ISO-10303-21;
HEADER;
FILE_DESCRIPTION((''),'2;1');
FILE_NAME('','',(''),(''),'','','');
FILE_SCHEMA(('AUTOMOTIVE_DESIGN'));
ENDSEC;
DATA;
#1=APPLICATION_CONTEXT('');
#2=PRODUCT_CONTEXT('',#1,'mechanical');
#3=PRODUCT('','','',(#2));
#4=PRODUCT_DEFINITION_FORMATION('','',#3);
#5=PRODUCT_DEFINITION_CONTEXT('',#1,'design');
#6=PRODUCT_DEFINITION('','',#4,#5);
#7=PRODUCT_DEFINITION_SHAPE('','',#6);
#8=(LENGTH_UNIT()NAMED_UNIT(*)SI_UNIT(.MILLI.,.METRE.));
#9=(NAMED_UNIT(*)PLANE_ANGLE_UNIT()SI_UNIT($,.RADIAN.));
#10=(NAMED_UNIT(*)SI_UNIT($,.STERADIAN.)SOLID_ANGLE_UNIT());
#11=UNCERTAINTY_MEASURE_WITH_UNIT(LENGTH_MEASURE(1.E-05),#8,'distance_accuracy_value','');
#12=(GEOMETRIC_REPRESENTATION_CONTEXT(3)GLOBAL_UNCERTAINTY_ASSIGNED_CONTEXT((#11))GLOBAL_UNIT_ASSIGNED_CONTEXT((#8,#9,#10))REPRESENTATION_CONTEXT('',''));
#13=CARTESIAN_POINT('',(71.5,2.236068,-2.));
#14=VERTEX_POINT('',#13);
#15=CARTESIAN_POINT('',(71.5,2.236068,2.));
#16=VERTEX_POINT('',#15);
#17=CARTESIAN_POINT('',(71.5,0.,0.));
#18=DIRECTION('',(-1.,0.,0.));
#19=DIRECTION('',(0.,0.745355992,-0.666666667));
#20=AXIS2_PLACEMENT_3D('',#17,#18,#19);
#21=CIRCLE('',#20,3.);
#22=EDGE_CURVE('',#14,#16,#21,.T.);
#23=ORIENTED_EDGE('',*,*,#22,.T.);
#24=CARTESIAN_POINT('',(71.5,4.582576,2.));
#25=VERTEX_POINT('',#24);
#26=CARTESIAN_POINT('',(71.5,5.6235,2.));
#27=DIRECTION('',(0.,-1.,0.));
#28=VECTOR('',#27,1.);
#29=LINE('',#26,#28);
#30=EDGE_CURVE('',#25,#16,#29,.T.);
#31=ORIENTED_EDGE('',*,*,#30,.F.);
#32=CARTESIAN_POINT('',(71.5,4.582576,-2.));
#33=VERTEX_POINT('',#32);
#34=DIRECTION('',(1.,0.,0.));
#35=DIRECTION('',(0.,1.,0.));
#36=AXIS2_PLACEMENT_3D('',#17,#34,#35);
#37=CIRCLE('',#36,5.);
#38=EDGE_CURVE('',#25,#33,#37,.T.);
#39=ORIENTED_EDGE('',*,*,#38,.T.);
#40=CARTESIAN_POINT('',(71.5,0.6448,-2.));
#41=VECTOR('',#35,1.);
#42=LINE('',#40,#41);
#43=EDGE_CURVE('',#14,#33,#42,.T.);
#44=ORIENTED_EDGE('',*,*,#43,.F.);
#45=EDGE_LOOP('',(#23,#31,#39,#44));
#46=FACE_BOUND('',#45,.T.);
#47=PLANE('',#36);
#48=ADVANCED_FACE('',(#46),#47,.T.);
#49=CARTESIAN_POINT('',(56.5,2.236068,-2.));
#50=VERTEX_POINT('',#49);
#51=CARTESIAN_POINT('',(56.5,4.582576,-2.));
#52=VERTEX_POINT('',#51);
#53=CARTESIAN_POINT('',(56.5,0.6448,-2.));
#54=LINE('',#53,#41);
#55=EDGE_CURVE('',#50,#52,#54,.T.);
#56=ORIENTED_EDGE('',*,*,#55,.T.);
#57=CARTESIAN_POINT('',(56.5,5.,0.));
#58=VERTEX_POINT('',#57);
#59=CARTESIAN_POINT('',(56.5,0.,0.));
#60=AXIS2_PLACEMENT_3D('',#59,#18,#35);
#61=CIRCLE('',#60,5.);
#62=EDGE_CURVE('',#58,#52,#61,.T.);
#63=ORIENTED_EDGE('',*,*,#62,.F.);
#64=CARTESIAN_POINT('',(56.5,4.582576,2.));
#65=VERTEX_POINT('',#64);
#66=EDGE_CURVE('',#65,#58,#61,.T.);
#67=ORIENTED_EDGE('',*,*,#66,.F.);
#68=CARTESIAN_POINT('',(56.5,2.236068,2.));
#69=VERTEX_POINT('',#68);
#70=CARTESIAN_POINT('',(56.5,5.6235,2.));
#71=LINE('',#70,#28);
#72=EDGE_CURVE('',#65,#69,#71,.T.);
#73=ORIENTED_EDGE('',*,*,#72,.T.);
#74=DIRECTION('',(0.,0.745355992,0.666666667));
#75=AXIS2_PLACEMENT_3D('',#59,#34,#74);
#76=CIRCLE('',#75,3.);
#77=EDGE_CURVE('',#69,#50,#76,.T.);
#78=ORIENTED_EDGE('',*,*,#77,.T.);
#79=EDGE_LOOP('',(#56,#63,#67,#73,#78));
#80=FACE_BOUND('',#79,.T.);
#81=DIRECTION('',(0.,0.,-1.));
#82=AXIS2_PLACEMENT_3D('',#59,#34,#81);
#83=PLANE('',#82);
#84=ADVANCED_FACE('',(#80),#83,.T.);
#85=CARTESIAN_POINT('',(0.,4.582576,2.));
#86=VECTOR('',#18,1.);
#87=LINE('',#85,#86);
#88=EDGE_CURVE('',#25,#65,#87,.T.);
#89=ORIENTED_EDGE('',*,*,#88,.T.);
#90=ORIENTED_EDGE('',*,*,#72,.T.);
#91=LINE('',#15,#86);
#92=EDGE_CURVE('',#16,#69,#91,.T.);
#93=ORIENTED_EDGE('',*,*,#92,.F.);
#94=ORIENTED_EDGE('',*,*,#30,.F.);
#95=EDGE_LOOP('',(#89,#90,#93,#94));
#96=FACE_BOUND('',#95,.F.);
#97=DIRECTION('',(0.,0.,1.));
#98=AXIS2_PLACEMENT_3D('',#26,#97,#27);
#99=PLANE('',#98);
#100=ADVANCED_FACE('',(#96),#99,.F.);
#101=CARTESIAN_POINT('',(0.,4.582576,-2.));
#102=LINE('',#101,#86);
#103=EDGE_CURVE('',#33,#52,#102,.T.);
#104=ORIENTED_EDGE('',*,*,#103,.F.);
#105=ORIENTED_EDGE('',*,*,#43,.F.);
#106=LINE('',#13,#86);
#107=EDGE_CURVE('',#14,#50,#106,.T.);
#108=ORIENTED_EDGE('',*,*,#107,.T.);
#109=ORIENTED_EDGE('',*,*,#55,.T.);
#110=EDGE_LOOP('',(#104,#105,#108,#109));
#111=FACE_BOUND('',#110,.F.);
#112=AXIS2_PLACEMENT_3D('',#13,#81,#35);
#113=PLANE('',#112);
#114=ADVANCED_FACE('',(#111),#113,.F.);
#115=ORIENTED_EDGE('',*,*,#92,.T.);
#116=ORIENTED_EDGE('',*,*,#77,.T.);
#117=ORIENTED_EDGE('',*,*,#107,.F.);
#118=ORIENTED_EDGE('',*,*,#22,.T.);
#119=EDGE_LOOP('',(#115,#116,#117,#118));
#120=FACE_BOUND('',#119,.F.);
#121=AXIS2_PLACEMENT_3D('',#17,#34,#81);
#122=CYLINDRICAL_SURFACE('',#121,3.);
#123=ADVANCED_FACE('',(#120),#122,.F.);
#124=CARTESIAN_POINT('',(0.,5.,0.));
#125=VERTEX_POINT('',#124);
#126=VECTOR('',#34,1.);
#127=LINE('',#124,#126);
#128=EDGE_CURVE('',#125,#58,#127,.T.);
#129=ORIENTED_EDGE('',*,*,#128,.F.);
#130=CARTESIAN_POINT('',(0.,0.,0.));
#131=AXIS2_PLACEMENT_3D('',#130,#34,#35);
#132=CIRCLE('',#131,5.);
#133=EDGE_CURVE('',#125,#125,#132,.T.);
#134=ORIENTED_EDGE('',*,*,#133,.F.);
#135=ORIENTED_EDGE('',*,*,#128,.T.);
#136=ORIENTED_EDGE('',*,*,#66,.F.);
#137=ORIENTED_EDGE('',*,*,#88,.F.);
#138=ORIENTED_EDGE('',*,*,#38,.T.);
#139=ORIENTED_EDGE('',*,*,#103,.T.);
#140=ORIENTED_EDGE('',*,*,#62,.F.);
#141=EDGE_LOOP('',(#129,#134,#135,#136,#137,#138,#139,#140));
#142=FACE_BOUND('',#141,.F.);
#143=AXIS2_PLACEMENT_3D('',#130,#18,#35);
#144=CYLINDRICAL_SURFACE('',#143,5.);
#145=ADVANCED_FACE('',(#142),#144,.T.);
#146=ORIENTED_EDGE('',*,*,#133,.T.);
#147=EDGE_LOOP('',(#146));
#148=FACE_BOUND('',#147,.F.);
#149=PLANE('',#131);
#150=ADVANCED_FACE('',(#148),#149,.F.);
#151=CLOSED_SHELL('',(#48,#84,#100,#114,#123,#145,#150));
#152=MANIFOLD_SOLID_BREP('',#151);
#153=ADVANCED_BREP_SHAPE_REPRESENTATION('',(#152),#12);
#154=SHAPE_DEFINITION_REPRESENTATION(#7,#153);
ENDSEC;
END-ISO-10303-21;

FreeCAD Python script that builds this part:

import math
import FreeCAD as App
import Part
import Sketcher

doc = App.newDocument("Part")
body = doc.addObject("PartDesign::Body", "Body")

# Sketch on YZ plane
sketch1 = doc.addObject("Sketcher::SketchObject", "Sketch")
body.addObject(sketch1)
sketch1.AttachmentSupport = (doc.YZ_Plane, [""])
sketch1.MapMode = "FlatFace"
sketch1.addGeometry(Part.Circle(App.Vector(0, 0, 0), App.Vector(0, 0, 1), 5), False)
sketch1.addConstraint(Sketcher.Constraint("Coincident", 0, 3, -1, 1))
sketch1.addConstraint(Sketcher.Constraint("Diameter", 0, 10.0))
pad1 = doc.addObject("PartDesign::Pad", "Pad")
body.addObject(pad1)
pad1.Profile = sketch1
pad1.Length = 71.5

# Sketch on YZ plane
sketch2 = doc.addObject("Sketcher::SketchObject", "Sketch001")
body.addObject(sketch2)
sketch2.AttachmentSupport = (doc.YZ_Plane, [""])
sketch2.MapMode = "FlatFace"
sketch2.AttachmentOffset = App.Placement(App.Vector(0, 0, 71.5), App.Rotation())
sketch2.addGeometry(Part.ArcOfCircle(Part.Circle(App.Vector(0, 0, 0), App.Vector(0, 0, 1), 3), math.radians(42), math.radians(318)), False)
sketch2.addGeometry(Part.LineSegment(App.Vector(2.2, -2, 0), App.Vector(5.6, -2, 0)), False)
sketch2.addGeometry(Part.LineSegment(App.Vector(5.6, -2, 0), App.Vector(5.6, 2, 0)), False)
sketch2.addGeometry(Part.LineSegment(App.Vector(5.6, 2, 0), App.Vector(2.2, 2, 0)), False)
sketch2.addConstraint(Sketcher.Constraint("Coincident", 0, 2, 1, 1))
sketch2.addConstraint(Sketcher.Constraint("Coincident", 1, 2, 2, 1))
sketch2.addConstraint(Sketcher.Constraint("Coincident", 2, 2, 3, 1))
sketch2.addConstraint(Sketcher.Constraint("Coincident", 3, 2, 0, 1))
sketch2.addConstraint(Sketcher.Constraint("Horizontal", 1))
sketch2.addConstraint(Sketcher.Constraint("Vertical", 2))
sketch2.addConstraint(Sketcher.Constraint("Horizontal", 3))
sketch2.addConstraint(Sketcher.Constraint("Coincident", 0, 3, -1, 1))
sketch2.addConstraint(Sketcher.Constraint("Vertical", 0, 2, 3, 2))
sketch2.addConstraint(Sketcher.Constraint("Radius", 0, 3.0))
sketch2.addConstraint(Sketcher.Constraint("DistanceY", 0, 2, -1, 1, 2.0))
sketch2.addConstraint(Sketcher.Constraint("DistanceX", 1, 1, 1, 2, 3.3874))
pocket1 = doc.addObject("PartDesign::Pocket", "Pocket")
body.addObject(pocket1)
pocket1.Profile = sketch2
pocket1.Length = 15

doc.recompute()
